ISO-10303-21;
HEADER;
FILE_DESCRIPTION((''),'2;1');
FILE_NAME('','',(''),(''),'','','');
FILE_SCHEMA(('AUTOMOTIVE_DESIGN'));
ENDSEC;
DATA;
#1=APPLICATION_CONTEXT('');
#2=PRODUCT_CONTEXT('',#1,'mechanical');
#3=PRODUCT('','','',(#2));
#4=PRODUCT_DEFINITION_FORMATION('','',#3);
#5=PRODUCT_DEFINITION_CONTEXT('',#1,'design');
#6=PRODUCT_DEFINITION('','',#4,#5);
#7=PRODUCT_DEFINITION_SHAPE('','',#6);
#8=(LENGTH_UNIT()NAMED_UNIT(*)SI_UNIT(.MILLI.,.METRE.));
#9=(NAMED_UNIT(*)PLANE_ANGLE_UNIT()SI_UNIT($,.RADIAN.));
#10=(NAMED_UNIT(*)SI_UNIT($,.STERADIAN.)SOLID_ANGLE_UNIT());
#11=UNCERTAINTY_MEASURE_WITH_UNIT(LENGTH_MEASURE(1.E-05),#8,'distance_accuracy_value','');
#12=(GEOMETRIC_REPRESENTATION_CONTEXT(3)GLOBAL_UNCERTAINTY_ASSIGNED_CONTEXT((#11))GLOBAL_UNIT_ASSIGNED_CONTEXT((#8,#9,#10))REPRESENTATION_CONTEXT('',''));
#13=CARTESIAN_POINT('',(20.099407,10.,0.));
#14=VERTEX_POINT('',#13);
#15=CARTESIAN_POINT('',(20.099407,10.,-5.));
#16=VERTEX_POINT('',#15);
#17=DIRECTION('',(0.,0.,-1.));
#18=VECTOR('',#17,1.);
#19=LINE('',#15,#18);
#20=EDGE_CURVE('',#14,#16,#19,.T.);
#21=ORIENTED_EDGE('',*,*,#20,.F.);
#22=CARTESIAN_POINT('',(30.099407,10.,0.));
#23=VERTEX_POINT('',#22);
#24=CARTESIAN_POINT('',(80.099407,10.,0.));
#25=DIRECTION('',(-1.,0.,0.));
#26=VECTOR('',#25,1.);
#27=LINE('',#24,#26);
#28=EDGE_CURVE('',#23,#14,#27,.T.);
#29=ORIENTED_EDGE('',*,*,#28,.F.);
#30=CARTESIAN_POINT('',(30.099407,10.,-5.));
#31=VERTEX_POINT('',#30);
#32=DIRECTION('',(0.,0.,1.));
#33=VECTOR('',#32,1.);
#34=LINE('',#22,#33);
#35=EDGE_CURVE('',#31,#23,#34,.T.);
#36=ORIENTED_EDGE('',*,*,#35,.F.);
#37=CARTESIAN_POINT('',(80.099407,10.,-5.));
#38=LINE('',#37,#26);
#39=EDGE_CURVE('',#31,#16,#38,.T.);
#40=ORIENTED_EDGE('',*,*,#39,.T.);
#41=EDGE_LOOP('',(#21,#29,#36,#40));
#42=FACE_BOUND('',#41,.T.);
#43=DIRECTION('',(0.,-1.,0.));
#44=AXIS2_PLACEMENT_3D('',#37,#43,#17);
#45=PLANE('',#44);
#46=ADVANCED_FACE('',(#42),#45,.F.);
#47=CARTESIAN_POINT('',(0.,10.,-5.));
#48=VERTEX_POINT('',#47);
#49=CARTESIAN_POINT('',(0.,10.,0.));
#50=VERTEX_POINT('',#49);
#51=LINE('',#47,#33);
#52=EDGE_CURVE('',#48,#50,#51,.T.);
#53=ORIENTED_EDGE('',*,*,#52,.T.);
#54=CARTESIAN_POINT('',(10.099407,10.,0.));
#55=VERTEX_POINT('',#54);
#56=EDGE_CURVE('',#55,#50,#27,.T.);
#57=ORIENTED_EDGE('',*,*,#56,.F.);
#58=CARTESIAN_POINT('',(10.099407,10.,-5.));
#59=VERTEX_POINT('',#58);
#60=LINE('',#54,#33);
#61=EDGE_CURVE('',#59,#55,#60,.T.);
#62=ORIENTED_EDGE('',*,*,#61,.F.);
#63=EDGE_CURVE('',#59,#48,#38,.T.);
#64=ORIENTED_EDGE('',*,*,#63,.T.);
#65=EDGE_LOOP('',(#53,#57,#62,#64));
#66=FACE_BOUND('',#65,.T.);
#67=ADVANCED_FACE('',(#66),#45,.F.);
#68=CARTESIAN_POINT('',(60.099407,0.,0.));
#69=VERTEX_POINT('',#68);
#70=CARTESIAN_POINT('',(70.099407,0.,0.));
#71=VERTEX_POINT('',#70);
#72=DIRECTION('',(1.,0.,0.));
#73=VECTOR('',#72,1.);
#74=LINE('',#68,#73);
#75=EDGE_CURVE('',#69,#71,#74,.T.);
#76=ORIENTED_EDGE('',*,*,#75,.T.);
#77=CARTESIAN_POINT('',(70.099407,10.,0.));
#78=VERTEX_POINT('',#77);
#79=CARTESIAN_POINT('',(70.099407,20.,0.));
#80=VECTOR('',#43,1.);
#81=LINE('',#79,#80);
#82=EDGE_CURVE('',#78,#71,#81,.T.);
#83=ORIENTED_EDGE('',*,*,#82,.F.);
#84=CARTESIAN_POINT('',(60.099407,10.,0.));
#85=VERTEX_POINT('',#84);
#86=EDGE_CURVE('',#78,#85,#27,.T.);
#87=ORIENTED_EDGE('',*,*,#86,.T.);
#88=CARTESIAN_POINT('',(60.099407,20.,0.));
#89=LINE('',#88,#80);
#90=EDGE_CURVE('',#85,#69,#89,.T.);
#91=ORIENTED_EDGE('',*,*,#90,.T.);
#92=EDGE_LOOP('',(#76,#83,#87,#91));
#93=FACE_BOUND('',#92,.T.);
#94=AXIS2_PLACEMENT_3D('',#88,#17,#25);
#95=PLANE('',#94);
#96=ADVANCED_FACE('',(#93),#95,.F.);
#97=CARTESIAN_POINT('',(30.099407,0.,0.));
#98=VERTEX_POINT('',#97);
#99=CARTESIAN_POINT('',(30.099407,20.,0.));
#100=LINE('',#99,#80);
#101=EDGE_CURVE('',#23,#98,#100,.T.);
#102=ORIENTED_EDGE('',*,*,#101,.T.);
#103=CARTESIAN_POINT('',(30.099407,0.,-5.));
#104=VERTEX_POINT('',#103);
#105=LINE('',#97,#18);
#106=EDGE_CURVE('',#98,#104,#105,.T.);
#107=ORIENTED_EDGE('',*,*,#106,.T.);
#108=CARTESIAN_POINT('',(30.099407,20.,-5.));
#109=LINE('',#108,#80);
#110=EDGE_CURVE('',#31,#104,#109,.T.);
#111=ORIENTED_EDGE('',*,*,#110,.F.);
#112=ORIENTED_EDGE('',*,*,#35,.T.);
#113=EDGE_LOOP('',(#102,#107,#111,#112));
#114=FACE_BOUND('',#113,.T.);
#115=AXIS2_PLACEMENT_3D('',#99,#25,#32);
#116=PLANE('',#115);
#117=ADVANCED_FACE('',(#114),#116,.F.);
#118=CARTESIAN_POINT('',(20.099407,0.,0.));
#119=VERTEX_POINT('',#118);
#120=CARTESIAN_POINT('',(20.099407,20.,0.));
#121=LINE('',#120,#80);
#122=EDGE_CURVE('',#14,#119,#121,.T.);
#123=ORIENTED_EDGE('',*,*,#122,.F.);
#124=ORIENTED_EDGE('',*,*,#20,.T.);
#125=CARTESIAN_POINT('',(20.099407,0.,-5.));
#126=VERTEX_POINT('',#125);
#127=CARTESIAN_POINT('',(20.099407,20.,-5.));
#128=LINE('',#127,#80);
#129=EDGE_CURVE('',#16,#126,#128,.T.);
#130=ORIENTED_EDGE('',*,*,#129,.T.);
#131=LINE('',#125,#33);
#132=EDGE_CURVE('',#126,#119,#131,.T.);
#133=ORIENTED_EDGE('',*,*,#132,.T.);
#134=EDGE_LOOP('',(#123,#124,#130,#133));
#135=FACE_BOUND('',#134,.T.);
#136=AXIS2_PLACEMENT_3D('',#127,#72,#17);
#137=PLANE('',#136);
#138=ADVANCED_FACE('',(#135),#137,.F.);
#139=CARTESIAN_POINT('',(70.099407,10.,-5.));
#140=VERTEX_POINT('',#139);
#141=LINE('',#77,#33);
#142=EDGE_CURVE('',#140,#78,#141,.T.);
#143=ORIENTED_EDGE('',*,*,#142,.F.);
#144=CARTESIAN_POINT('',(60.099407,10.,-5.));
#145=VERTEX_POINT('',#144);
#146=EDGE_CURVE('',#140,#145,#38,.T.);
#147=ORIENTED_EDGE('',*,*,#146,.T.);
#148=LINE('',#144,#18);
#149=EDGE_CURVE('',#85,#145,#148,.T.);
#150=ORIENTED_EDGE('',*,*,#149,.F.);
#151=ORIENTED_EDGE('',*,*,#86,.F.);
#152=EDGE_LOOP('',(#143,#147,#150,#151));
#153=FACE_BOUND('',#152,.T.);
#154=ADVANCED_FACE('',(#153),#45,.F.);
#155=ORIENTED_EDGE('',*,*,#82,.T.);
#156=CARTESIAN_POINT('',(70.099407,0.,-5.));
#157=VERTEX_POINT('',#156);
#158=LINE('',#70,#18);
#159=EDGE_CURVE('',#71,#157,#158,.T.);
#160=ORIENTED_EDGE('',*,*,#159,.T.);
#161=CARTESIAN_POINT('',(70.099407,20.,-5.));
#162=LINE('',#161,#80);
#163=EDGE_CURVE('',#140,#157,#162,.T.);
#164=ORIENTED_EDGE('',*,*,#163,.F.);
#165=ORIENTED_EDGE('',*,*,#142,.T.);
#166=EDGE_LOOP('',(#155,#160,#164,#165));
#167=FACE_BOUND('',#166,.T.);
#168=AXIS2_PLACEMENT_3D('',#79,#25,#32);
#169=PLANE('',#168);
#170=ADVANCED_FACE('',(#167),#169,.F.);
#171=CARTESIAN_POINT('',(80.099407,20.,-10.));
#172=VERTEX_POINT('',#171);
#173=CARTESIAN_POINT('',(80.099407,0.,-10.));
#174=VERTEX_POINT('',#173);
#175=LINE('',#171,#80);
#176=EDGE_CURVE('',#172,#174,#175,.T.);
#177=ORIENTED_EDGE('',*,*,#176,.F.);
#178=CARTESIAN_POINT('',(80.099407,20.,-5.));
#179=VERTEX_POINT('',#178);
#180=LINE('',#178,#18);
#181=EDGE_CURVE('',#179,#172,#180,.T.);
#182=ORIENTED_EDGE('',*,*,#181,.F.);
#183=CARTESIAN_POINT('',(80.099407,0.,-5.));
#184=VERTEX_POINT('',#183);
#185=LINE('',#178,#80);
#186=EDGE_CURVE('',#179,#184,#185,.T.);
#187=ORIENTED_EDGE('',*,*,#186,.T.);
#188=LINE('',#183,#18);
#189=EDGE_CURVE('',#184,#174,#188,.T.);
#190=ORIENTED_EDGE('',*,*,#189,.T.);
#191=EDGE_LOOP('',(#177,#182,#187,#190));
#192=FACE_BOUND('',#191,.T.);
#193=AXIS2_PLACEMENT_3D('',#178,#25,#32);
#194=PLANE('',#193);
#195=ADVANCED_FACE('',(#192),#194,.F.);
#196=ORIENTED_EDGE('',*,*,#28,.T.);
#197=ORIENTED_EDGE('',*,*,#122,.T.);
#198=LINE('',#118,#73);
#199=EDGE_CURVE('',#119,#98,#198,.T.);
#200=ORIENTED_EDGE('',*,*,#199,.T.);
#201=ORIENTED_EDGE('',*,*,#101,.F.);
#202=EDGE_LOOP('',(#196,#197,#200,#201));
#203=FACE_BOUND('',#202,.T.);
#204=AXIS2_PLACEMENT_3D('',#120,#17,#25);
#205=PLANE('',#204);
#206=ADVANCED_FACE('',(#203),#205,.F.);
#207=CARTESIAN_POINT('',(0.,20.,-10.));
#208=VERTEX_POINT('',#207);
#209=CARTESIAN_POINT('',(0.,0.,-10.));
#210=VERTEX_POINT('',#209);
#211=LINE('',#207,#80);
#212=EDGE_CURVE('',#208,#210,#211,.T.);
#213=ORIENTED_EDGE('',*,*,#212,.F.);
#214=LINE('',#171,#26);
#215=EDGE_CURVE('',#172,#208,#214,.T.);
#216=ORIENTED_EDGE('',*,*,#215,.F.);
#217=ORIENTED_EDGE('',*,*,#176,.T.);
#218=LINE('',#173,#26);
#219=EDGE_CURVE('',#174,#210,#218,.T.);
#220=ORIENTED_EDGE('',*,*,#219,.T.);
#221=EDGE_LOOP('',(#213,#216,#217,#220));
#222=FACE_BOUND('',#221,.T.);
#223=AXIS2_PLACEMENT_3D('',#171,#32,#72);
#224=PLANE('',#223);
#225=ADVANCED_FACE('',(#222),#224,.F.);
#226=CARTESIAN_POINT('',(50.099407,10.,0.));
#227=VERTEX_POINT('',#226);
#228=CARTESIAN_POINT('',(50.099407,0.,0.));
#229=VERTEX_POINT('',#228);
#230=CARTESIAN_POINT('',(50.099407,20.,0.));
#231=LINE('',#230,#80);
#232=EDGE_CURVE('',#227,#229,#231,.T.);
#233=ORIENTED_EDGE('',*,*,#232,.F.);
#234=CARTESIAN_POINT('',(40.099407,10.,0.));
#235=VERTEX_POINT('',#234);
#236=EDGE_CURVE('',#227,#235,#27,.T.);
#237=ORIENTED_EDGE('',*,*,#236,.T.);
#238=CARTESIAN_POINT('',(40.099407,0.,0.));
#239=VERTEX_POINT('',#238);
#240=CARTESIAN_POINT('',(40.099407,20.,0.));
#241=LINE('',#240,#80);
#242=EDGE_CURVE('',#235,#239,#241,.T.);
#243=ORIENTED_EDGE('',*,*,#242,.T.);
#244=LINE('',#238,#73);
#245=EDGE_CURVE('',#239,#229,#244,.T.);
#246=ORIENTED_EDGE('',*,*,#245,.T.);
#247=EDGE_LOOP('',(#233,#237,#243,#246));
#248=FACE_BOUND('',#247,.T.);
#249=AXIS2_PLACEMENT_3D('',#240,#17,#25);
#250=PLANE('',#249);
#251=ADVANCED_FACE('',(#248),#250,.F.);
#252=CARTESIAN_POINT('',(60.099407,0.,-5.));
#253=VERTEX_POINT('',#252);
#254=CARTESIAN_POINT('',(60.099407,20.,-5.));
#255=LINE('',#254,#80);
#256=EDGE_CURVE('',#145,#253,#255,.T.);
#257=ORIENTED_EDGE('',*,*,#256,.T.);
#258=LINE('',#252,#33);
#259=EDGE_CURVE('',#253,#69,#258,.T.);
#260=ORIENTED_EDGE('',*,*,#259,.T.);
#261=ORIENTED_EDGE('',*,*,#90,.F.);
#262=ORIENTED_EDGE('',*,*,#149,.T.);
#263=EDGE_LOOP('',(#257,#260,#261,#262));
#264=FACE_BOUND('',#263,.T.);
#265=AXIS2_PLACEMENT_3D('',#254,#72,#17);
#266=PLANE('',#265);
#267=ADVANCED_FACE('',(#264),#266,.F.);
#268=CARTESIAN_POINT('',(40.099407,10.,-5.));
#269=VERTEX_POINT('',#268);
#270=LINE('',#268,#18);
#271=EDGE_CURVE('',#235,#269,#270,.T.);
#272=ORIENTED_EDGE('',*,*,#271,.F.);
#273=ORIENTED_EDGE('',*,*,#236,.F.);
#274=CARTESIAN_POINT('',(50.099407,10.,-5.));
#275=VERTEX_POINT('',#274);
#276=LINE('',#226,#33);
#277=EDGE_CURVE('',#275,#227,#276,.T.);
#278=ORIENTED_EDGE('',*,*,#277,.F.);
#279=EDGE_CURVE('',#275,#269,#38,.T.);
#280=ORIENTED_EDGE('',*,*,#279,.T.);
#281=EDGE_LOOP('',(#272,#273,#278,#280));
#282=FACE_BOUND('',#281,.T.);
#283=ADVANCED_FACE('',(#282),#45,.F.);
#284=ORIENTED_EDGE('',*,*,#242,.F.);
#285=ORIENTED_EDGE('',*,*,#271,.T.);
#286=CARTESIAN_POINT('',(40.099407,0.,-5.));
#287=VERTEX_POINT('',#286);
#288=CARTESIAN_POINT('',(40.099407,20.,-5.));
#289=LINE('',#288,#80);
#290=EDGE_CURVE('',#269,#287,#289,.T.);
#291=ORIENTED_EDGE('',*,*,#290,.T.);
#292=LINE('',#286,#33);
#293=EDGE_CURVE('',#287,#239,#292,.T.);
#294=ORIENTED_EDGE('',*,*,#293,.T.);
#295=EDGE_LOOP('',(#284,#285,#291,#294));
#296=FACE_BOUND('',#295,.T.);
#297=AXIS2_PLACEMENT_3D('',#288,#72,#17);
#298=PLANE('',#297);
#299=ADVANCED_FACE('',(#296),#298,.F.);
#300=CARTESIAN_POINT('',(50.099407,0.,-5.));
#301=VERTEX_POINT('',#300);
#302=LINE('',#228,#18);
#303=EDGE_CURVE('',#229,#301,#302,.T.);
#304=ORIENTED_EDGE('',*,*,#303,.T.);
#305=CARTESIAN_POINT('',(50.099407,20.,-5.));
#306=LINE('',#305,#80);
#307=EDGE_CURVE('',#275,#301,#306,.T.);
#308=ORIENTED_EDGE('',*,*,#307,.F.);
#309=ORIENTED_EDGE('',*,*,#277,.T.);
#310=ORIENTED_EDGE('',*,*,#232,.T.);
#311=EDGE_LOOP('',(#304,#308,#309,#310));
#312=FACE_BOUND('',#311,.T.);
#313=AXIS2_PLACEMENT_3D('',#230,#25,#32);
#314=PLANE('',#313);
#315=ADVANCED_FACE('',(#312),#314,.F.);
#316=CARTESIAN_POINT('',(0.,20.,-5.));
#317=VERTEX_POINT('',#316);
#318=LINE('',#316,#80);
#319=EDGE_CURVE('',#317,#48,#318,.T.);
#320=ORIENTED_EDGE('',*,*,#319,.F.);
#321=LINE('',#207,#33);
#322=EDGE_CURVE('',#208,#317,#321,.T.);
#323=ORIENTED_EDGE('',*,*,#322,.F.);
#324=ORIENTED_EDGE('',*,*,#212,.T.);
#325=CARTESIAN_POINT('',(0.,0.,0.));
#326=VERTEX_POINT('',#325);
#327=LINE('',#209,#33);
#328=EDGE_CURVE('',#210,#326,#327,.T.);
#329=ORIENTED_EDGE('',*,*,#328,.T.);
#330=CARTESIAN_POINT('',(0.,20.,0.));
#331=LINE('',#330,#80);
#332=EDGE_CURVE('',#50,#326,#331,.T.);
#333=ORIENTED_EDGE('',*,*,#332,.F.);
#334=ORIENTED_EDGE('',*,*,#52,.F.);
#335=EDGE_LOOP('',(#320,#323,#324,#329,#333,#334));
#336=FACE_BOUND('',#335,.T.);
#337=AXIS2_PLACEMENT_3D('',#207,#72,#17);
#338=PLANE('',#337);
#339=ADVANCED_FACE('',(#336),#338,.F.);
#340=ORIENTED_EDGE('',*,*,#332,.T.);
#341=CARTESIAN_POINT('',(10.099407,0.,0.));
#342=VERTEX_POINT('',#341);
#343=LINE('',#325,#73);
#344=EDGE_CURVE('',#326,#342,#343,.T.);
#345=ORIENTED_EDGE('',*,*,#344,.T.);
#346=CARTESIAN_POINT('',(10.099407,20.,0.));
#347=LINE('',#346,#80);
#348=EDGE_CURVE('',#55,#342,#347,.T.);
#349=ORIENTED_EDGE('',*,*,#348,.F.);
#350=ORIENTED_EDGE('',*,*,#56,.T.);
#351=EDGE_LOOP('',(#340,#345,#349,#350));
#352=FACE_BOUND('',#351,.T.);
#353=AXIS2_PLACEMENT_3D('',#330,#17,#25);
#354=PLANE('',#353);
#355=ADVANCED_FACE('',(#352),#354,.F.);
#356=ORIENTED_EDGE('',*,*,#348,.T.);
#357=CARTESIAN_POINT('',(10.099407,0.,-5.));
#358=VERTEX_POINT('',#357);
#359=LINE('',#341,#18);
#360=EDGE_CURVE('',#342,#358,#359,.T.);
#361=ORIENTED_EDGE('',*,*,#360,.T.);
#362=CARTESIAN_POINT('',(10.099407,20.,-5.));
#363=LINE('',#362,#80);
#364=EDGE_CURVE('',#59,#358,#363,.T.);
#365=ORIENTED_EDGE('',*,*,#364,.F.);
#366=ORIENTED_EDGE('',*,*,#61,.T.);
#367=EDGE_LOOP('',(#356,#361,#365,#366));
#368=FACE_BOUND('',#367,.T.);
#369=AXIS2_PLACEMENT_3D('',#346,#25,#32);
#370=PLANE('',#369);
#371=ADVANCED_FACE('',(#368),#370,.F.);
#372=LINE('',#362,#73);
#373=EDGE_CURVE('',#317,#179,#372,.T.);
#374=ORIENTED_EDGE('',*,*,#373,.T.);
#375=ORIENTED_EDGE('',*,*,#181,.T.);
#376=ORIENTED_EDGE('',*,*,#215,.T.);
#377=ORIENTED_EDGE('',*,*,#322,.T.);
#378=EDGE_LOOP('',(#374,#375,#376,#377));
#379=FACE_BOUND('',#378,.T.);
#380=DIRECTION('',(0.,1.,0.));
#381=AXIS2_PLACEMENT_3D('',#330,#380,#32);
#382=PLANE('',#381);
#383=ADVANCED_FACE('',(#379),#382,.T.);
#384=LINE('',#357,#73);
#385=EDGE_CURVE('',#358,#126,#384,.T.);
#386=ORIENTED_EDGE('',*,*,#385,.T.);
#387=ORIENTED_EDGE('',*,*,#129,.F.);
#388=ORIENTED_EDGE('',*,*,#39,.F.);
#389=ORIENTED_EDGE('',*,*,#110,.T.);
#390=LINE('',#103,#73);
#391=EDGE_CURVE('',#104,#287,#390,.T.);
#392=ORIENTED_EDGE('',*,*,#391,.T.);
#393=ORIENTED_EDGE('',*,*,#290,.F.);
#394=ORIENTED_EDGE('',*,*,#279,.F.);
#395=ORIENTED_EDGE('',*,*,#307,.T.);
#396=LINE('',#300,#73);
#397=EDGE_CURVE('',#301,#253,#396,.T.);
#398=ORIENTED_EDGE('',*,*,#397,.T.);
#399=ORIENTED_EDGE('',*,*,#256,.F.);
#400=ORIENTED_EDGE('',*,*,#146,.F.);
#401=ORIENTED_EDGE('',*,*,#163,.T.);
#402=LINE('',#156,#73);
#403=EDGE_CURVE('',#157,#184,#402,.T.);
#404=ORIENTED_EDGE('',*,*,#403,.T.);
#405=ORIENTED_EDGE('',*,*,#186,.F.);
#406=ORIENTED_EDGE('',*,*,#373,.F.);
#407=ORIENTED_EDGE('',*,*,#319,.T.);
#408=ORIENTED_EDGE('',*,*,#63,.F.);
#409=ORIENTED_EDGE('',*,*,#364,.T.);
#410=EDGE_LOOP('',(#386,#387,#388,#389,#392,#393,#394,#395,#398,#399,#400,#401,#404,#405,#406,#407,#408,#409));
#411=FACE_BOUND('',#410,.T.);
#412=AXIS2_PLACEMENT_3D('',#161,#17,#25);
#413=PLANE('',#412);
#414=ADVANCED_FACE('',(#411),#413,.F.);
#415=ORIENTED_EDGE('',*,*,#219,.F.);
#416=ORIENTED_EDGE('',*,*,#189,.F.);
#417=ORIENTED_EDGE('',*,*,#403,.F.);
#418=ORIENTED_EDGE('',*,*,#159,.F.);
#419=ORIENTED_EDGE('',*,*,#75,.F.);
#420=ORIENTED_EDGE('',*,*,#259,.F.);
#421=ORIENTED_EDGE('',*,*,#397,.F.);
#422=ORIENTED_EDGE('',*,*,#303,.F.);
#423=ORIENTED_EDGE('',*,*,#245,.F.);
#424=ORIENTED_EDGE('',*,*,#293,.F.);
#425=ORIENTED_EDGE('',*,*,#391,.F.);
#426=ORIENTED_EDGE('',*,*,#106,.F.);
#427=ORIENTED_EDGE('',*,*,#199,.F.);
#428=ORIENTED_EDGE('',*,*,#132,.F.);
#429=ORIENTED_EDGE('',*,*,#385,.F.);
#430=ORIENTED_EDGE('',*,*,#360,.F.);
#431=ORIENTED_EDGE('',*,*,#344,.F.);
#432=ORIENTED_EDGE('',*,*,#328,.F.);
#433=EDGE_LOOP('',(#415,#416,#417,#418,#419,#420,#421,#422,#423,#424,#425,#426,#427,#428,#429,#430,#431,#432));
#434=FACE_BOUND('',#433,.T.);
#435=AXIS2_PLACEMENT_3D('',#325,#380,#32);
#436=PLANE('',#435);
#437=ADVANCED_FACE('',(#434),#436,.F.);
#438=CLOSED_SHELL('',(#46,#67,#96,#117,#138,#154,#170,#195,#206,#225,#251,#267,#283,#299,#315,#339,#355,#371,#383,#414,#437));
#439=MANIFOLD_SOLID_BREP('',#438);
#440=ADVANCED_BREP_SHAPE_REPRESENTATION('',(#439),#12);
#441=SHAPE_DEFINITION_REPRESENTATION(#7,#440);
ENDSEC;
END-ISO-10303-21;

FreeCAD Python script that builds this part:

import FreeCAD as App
import Part
import Sketcher

V = App.Vector


def add_polygon(sketch, points):
    """Adds a closed chain of lines whose ends are joined by coincident constraints."""
    first, n = sketch.GeometryCount, len(points)
    for a, b in zip(points, points[1:] + points[:1]):
        sketch.addGeometry(Part.LineSegment(App.Vector(*a, 0), App.Vector(*b, 0)), False)
    for i in range(n):
        sketch.addConstraint(Sketcher.Constraint("Coincident", first + i, 2, first + (i + 1) % n, 1))

doc = App.newDocument("Part")
params = doc.addObject("Spreadsheet::Sheet", "Params")
for row, (alias, value) in enumerate([
    ("sketch1_width", "10 mm"),
    ("pad1_length", "20 mm"),
    ("sketch2_width", "10 mm"),
    ("sketch2_height", "5 mm"),
], start=1):
    params.set(f"A{row}", alias)
    params.set(f"B{row}", "=" + value)
    params.setAlias(f"B{row}", alias)

body = doc.addObject("PartDesign::Body", "Body")

sketch1 = body.newObject("Sketcher::SketchObject", "Sketch")
sketch1.AttachmentSupport = (doc.getObject("XZ_Plane"), [""])
sketch1.MapMode = "FlatFace"
add_polygon(sketch1, [(0, 0), (10, 0), (10, -5), (20, -5), (20, 0), (30, 0), (30, -5), (40, -5), (40, 0), (50, 0), (50, -5), (60, -5), (60, 0), (70, 0), (70, -5), (80, -5), (80, -10), (0, -10)])
sketch1.addConstraint(Sketcher.Constraint("Horizontal", 0))
sketch1.addConstraint(Sketcher.Constraint("Vertical", 1))
sketch1.addConstraint(Sketcher.Constraint("Horizontal", 2))
sketch1.addConstraint(Sketcher.Constraint("Vertical", 3))
sketch1.addConstraint(Sketcher.Constraint("Horizontal", 4))
sketch1.addConstraint(Sketcher.Constraint("Vertical", 5))
sketch1.addConstraint(Sketcher.Constraint("Horizontal", 6))
sketch1.addConstraint(Sketcher.Constraint("Vertical", 7))
sketch1.addConstraint(Sketcher.Constraint("Horizontal", 8))
sketch1.addConstraint(Sketcher.Constraint("Vertical", 9))
sketch1.addConstraint(Sketcher.Constraint("Horizontal", 10))
sketch1.addConstraint(Sketcher.Constraint("Vertical", 11))
sketch1.addConstraint(Sketcher.Constraint("Horizontal", 12))
sketch1.addConstraint(Sketcher.Constraint("Vertical", 13))
sketch1.addConstraint(Sketcher.Constraint("Horizontal", 14))
sketch1.addConstraint(Sketcher.Constraint("Vertical", 15))
sketch1.addConstraint(Sketcher.Constraint("Horizontal", 16))
sketch1.addConstraint(Sketcher.Constraint("Vertical", 17))
sketch1.addConstraint(Sketcher.Constraint("Coincident", 17, 2, -1, 1))
sketch1.addConstraint(Sketcher.Constraint("PointOnObject", 3, 2, -1))
sketch1.addConstraint(Sketcher.Constraint("PointOnObject", 7, 2, -1))
sketch1.addConstraint(Sketcher.Constraint("PointOnObject", 11, 2, -1))
sketch1.addConstraint(Sketcher.Constraint("Horizontal", 2, 2, 5, 2))
sketch1.addConstraint(Sketcher.Constraint("Horizontal", 6, 2, 9, 2))
sketch1.addConstraint(Sketcher.Constraint("Horizontal", 10, 2, 13, 2))
sketch1.addConstraint(Sketcher.Constraint("Equal", 2, 4))
sketch1.addConstraint(Sketcher.Constraint("Equal", 4, 6))
sketch1.addConstraint(Sketcher.Constraint("Equal", 6, 8))
sketch1.addConstraint(Sketcher.Constraint("Equal", 8, 10))
sketch1.addConstraint(Sketcher.Constraint("Equal", 10, 12))
sketch1.addConstraint(Sketcher.Constraint("Equal", 12, 14))
sketch1.addConstraint(Sketcher.Constraint("Equal", 13, 15))
sketch1.addConstraint(Sketcher.Constraint("Equal", 14, 17))
sketch1.addConstraint(Sketcher.Constraint("DistanceX", 2, 1, 2, 2, 10.0))
sketch1.addConstraint(Sketcher.Constraint("DistanceX", 0, 1, 0, 2, 10.099407))
sketch1.setExpression("Constraints[51]", "Params.sketch1_width")
pad1 = body.newObject("PartDesign::Pad", "Pad")
pad1.Profile = sketch1
pad1.setExpression("Length", "Params.pad1_length")
pad1.Reversed = True

sketch2 = body.newObject("Sketcher::SketchObject", "Sketch001")
sketch2.AttachmentSupport = (doc.getObject("YZ_Plane"), [""])
sketch2.MapMode = "FlatFace"
add_polygon(sketch2, [(20, -5), (10, -5), (10, 0), (20, 0)])
sketch2.addConstraint(Sketcher.Constraint("Horizontal", 0))
sketch2.addConstraint(Sketcher.Constraint("Vertical", 1))
sketch2.addConstraint(Sketcher.Constraint("Horizontal", 2))
sketch2.addConstraint(Sketcher.Constraint("Vertical", 3))
sketch2.addConstraint(Sketcher.Constraint("PointOnObject", 1, 2, -1))
sketch2.addConstraint(Sketcher.Constraint("DistanceX", 0, 2, 0, 1, 10.0))
sketch2.addConstraint(Sketcher.Constraint("DistanceY", 1, 1, 1, 2, 5.0))
sketch2.addConstraint(Sketcher.Constraint("DistanceX", -1, 1, 0, 2, 10.0))
sketch2.setExpression("Constraints[9]", "Params.sketch2_width")
sketch2.setExpression("Constraints[10]", "Params.sketch2_height")
pocket1 = body.newObject("PartDesign::Pocket", "Pocket")
pocket1.Profile = sketch2
pocket1.Type = "ThroughAll"
pocket1.Reversed = True

doc.recompute()
